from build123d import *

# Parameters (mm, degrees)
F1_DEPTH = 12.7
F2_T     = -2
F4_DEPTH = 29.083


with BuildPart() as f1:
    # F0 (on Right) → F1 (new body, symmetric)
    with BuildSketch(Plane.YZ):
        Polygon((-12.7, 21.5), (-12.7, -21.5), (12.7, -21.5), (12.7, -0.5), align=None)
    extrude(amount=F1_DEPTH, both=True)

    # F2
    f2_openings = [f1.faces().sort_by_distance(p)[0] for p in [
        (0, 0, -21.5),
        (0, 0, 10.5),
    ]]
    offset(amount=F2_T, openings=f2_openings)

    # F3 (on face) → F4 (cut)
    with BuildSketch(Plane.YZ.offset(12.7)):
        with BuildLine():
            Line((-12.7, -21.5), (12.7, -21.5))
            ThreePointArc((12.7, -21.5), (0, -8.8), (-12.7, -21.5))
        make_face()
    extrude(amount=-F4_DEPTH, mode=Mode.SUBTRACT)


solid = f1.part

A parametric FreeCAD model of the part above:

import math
import FreeCAD as App
import Part
import Sketcher


def faces_at(feature, points):
    """Names of the faces that lie closest to the given points."""
    faces = feature.Shape.Faces
    near = lambda p: min(range(len(faces)), key=lambda i: faces[i].distToShape(Part.Vertex(*p))[0])
    return sorted({f"Face{near(p) + 1}" for p in points})


def add_polygon(sketch, points):
    """Adds a closed chain of lines whose ends are joined by coincident constraints."""
    first, n = sketch.GeometryCount, len(points)
    for a, b in zip(points, points[1:] + points[:1]):
        sketch.addGeometry(Part.LineSegment(App.Vector(*a, 0), App.Vector(*b, 0)), False)
    for i in range(n):
        sketch.addConstraint(Sketcher.Constraint("Coincident", first + i, 2, first + (i + 1) % n, 1))

doc = App.newDocument("Part")
params = doc.addObject("Spreadsheet::Sheet", "Params")
for row, (alias, value) in enumerate([
    ("sketch1_height", "43 mm"),
    ("sketch1_height2", "21 mm"),
    ("sketch1_width", "25.4 mm"),
    ("pad1_length", "25.4 mm"),
    ("thickness_wall", "2 mm"),
    ("sketch2_radius", "12.7 mm"),
    ("pocket1_length", "29.083 mm"),
], start=1):
    params.set(f"A{row}", alias)
    params.set(f"B{row}", "=" + value)
    params.setAlias(f"B{row}", alias)

body = doc.addObject("PartDesign::Body", "Body")

sketch1 = body.newObject("Sketcher::SketchObject", "Sketch")
sketch1.AttachmentSupport = (doc.getObject("YZ_Plane"), [""])
sketch1.MapMode = "FlatFace"
add_polygon(sketch1, [(-13, 22), (-13, -22), (13, -22), (13, 0)])
sketch1.addConstraint([
    Sketcher.Constraint("Vertical", 0),
    Sketcher.Constraint("Horizontal", 1),
    Sketcher.Constraint("Vertical", 2),
    Sketcher.Constraint("Symmetric", 1, 2, 3, 2, -1, 1),
    Sketcher.Constraint("DistanceY", 0, 2, 0, 1, 43.0),
    Sketcher.Constraint("DistanceY", 2, 1, 2, 2, 21.0),
    Sketcher.Constraint("DistanceX", 1, 1, 1, 2, 25.4),
])
sketch1.setExpression("Constraints[8]", "Params.sketch1_height")
sketch1.setExpression("Constraints[9]", "Params.sketch1_height2")
sketch1.setExpression("Constraints[10]", "Params.sketch1_width")
pad1 = body.newObject("PartDesign::Pad", "Pad")
pad1.Profile = sketch1
pad1.setExpression("Length", "Params.pad1_length")
pad1.Midplane = True
doc.recompute()

thickness = body.newObject("PartDesign::Thickness", "Thickness")
thickness.Base = (pad1, faces_at(pad1, [(0, 0, -21.5), (0, 0, 10.5)]))
thickness.setExpression("Value", "Params.thickness_wall")
thickness.Reversed = True
thickness.Join = "Arc"

sketch2 = body.newObject("Sketcher::SketchObject", "Sketch001")
sketch2.AttachmentSupport = (doc.getObject("YZ_Plane"), [""])
sketch2.MapMode = "FlatFace"
sketch2.AttachmentOffset = App.Placement(App.Vector(0, 0, 12.7), App.Rotation())
sketch2.addGeometry([
    Part.LineSegment(App.Vector(-13, -22, 0), App.Vector(13, -22, 0)),
    Part.ArcOfCircle(Part.Circle(App.Vector(0, -22, 0), App.Vector(0, 0, 1), 13), math.radians(0), math.radians(180)),
], False)
sketch2.addConstraint([
    Sketcher.Constraint("Coincident", 0, 1, 1, 2),
    Sketcher.Constraint("Coincident", 1, 1, 0, 2),
    Sketcher.Constraint("Horizontal", 0),
    Sketcher.Constraint("PointOnObject", 1, 3, -2),
    Sketcher.Constraint("Horizontal", 1, 3, 0, 1),
    Sketcher.Constraint("Radius", 1, 12.7),
    Sketcher.Constraint("DistanceY", 1, 3, -1, 1, 21.5),
])
sketch2.setExpression("Constraints[5]", "Params.sketch2_radius")
pocket1 = body.newObject("PartDesign::Pocket", "Pocket")
pocket1.Profile = sketch2
pocket1.setExpression("Length", "Params.pocket1_length")

doc.recompute()
